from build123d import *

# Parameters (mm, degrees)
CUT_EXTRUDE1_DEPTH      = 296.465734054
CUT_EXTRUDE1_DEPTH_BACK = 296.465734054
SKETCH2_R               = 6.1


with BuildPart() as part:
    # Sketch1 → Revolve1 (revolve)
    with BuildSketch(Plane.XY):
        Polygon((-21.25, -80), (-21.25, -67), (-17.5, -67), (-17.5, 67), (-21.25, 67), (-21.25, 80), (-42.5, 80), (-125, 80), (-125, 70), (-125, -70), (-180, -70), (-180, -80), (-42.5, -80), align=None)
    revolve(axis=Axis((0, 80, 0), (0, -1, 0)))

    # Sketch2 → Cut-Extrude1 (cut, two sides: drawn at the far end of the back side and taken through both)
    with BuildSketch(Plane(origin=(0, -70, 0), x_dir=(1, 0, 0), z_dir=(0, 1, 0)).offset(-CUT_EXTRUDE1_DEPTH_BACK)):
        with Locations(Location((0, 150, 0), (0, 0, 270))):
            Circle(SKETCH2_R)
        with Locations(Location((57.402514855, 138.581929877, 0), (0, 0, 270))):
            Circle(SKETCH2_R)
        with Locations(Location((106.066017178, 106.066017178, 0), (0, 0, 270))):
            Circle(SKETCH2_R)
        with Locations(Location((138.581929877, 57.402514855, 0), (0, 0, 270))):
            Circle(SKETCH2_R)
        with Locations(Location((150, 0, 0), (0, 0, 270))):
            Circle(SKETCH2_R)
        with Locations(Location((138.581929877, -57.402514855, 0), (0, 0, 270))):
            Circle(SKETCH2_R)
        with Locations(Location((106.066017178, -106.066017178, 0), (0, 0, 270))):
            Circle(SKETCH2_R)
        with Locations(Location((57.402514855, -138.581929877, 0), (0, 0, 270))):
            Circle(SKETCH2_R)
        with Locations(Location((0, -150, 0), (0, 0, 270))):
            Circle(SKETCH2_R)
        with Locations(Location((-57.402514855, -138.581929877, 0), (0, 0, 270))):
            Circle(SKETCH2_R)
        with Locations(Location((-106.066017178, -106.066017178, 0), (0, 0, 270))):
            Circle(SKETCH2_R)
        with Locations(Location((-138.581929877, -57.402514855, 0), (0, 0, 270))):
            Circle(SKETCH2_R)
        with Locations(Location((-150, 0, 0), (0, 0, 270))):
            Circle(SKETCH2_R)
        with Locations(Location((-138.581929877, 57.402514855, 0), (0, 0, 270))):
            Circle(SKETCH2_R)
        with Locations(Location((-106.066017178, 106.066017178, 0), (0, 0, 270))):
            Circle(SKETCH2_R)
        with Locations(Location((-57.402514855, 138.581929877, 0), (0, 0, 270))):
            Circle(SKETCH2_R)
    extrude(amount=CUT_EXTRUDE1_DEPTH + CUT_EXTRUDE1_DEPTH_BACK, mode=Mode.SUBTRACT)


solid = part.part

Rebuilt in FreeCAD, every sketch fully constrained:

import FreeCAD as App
import Part
import Sketcher
Q = App.Units.Quantity


def add_polygon(sketch, points):
    """Adds a closed chain of lines whose ends are joined by coincident constraints."""
    first, n = sketch.GeometryCount, len(points)
    for a, b in zip(points, points[1:] + points[:1]):
        sketch.addGeometry(Part.LineSegment(App.Vector(*a, 0), App.Vector(*b, 0)), False)
    for i in range(n):
        sketch.addConstraint(Sketcher.Constraint("Coincident", first + i, 2, first + (i + 1) % n, 1))

doc = App.newDocument("Part")
body = doc.addObject("PartDesign::Body", "Body")

# Sketch on XY plane
sketch1 = body.newObject("Sketcher::SketchObject", "Sketch")
sketch1.AttachmentSupport = (doc.getObject("XY_Plane"), [""])
sketch1.MapMode = "FlatFace"
add_polygon(sketch1, [(-21.2, -80), (-21.2, -67), (-17.5, -67), (-17.5, 67), (-21.2, 67), (-21.2, 80), (-125, 80), (-125, -70), (-180, -70), (-180, -80)])  # lines 0-9
sketch1.addConstraint(Sketcher.Constraint("Vertical", 0))
sketch1.addConstraint(Sketcher.Constraint("Horizontal", 1))
sketch1.addConstraint(Sketcher.Constraint("Vertical", 2))
sketch1.addConstraint(Sketcher.Constraint("Horizontal", 3))
sketch1.addConstraint(Sketcher.Constraint("Vertical", 4))
sketch1.addConstraint(Sketcher.Constraint("Horizontal", 5))
sketch1.addConstraint(Sketcher.Constraint("Vertical", 6))
sketch1.addConstraint(Sketcher.Constraint("Horizontal", 7))
sketch1.addConstraint(Sketcher.Constraint("Vertical", 8))
sketch1.addConstraint(Sketcher.Constraint("Horizontal", 9))
sketch1.addConstraint(Sketcher.Constraint("Symmetric", 0, 2, 3, 2, -1))
sketch1.addConstraint(Sketcher.Constraint("Equal", 0, 4))
sketch1.addConstraint(Sketcher.Constraint("DistanceX", 7, 2, 7, 1, Q("55 mm")))
sketch1.addConstraint(Sketcher.Constraint("DistanceY", 0, 1, 0, 2, Q("13 mm")))
sketch1.addConstraint(Sketcher.Constraint("DistanceY", 2, 1, 2, 2, Q("134 mm")))
sketch1.addConstraint(Sketcher.Constraint("DistanceY", 6, 2, 6, 1, Q("150 mm")))
sketch1.addConstraint(Sketcher.Constraint("DistanceX", 5, 2, -1, 1, Q("125 mm")))
sketch1.addConstraint(Sketcher.Constraint("DistanceX", 1, 1, 1, 2, Q("3.75 mm")))
sketch1.addConstraint(Sketcher.Constraint("DistanceX", 5, 2, 5, 1, Q("103.75 mm")))
revolution = body.newObject("PartDesign::Revolution", "Revolution")
revolution.Profile = sketch1
revolution.ReferenceAxis = (sketch1, ["V_Axis"])
revolution.Angle = 360

# Sketch on XZ plane
sketch2 = body.newObject("Sketcher::SketchObject", "Sketch001")
sketch2.AttachmentSupport = (doc.getObject("XZ_Plane"), [""])
sketch2.MapMode = "FlatFace"
sketch2.AttachmentOffset = App.Placement(App.Vector(0, 0, 70), App.Rotation())
sketch2.addGeometry(Part.Circle(App.Vector(0, -150, 0), App.Vector(0, 0, 1), 6), False)
sketch2.addGeometry(Part.Circle(App.Vector(57, -139, 0), App.Vector(0, 0, 1), 6), False)
sketch2.addGeometry(Part.Circle(App.Vector(106, -106, 0), App.Vector(0, 0, 1), 6), False)
sketch2.addGeometry(Part.Circle(App.Vector(139, -57, 0), App.Vector(0, 0, 1), 6), False)
sketch2.addGeometry(Part.Circle(App.Vector(150, 0, 0), App.Vector(0, 0, 1), 6), False)
sketch2.addGeometry(Part.Circle(App.Vector(139, 57, 0), App.Vector(0, 0, 1), 6), False)
sketch2.addGeometry(Part.Circle(App.Vector(106, 106, 0), App.Vector(0, 0, 1), 6), False)
sketch2.addGeometry(Part.Circle(App.Vector(57, 139, 0), App.Vector(0, 0, 1), 6), False)
sketch2.addGeometry(Part.Circle(App.Vector(0, 150, 0), App.Vector(0, 0, 1), 6), False)
sketch2.addGeometry(Part.Circle(App.Vector(-57, 139, 0), App.Vector(0, 0, 1), 6), False)
sketch2.addGeometry(Part.Circle(App.Vector(-106, 106, 0), App.Vector(0, 0, 1), 6), False)
sketch2.addGeometry(Part.Circle(App.Vector(-139, 57, 0), App.Vector(0, 0, 1), 6), False)
sketch2.addGeometry(Part.Circle(App.Vector(-150, 0, 0), App.Vector(0, 0, 1), 6), False)
sketch2.addGeometry(Part.Circle(App.Vector(-139, -57, 0), App.Vector(0, 0, 1), 6), False)
sketch2.addGeometry(Part.Circle(App.Vector(-106, -106, 0), App.Vector(0, 0, 1), 6), False)
sketch2.addGeometry(Part.Circle(App.Vector(-57, -139, 0), App.Vector(0, 0, 1), 6), False)
sketch2.addConstraint(Sketcher.Constraint("Equal", 0, 1))
sketch2.addConstraint(Sketcher.Constraint("Equal", 1, 2))
sketch2.addConstraint(Sketcher.Constraint("Equal", 2, 3))
sketch2.addConstraint(Sketcher.Constraint("Equal", 3, 4))
sketch2.addConstraint(Sketcher.Constraint("Equal", 4, 5))
sketch2.addConstraint(Sketcher.Constraint("Equal", 5, 6))
sketch2.addConstraint(Sketcher.Constraint("Equal", 6, 7))
sketch2.addConstraint(Sketcher.Constraint("Equal", 7, 8))
sketch2.addConstraint(Sketcher.Constraint("Equal", 8, 9))
sketch2.addConstraint(Sketcher.Constraint("Equal", 9, 10))
sketch2.addConstraint(Sketcher.Constraint("Equal", 10, 11))
sketch2.addConstraint(Sketcher.Constraint("Equal", 11, 12))
sketch2.addConstraint(Sketcher.Constraint("Equal", 12, 13))
sketch2.addConstraint(Sketcher.Constraint("Equal", 13, 14))
sketch2.addConstraint(Sketcher.Constraint("Equal", 14, 15))
sketch2.addConstraint(Sketcher.Constraint("Symmetric", 0, 3, 8, 3, -1, 1))
sketch2.addConstraint(Sketcher.Constraint("Symmetric", 1, 3, 9, 3, -1, 1))
sketch2.addConstraint(Sketcher.Constraint("Symmetric", 2, 3, 10, 3, -1, 1))
sketch2.addConstraint(Sketcher.Constraint("Symmetric", 3, 3, 11, 3, -1, 1))
sketch2.addConstraint(Sketcher.Constraint("Symmetric", 4, 3, 12, 3, -1, 1))
sketch2.addConstraint(Sketcher.Constraint("Symmetric", 5, 3, 13, 3, -1, 1))
sketch2.addConstraint(Sketcher.Constraint("Symmetric", 6, 3, 14, 3, -1, 1))
sketch2.addConstraint(Sketcher.Constraint("Symmetric", 7, 3, 15, 3, -1, 1))
sketch2.addConstraint(Sketcher.Constraint("Symmetric", 7, 3, 9, 3, -2))
sketch2.addConstraint(Sketcher.Constraint("Symmetric", 6, 3, 10, 3, -2))
sketch2.addConstraint(Sketcher.Constraint("Symmetric", 5, 3, 11, 3, -2))
sketch2.addConstraint(Sketcher.Constraint("PointOnObject", 0, 3, -2))
sketch2.addConstraint(Sketcher.Constraint("PointOnObject", 4, 3, -1))
sketch2.addConstraint(Sketcher.Constraint("Diameter", 0, Q("12.2 mm")))
sketch2.addConstraint(Sketcher.Constraint("DistanceY", 0, 3, -1, 1, Q("150 mm")))
sketch2.addConstraint(Sketcher.Constraint("DistanceX", -1, 1, 4, 3, Q("150 mm")))
sketch2.addConstraint(Sketcher.Constraint("DistanceY", 1, 3, -1, 1, Q("138.58193 mm")))
sketch2.addConstraint(Sketcher.Constraint("DistanceX", -1, 1, 3, 3, Q("138.58193 mm")))
sketch2.addConstraint(Sketcher.Constraint("DistanceY", 3, 3, 5, 3, Q("114.80503 mm")))
sketch2.addConstraint(Sketcher.Constraint("DistanceX", 9, 3, 7, 3, Q("114.80503 mm")))
sketch2.addConstraint(Sketcher.Constraint("DistanceX", -1, 1, 2, 3, Q("106.066017 mm")))
sketch2.addConstraint(Sketcher.Constraint("DistanceY", 2, 3, -1, 1, Q("106.066017 mm")))
pocket1 = body.newObject("PartDesign::Pocket", "Pocket")
pocket1.Profile = sketch2
pocket1.Type = "ThroughAll"
pocket1.Midplane = True

doc.recompute()
